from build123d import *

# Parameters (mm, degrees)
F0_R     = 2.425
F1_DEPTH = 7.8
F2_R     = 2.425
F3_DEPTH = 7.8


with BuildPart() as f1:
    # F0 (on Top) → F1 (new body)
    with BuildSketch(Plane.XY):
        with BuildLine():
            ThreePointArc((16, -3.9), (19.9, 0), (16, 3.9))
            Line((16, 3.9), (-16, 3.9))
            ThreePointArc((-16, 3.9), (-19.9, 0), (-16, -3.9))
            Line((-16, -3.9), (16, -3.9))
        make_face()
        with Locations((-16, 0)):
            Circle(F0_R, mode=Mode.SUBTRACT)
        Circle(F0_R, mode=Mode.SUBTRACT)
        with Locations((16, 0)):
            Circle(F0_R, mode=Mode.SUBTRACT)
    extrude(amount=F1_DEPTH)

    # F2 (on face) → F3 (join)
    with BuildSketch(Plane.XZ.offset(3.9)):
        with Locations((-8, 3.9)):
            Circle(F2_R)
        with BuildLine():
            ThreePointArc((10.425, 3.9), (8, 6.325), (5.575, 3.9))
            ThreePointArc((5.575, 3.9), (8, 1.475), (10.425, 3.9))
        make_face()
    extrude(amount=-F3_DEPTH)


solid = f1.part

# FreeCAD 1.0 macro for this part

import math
import FreeCAD as App
import Part
import Sketcher

V = App.Vector

doc = App.newDocument("Part")
body = doc.addObject("PartDesign::Body", "Body")

# Sketch on XY plane
sketch1 = doc.addObject("Sketcher::SketchObject", "Sketch")
body.addObject(sketch1)
sketch1.AttachmentSupport = (doc.XY_Plane, [""])
sketch1.MapMode = "FlatFace"
sketch1.addGeometry(Part.ArcOfCircle(Part.Circle(V(16, 0, 0), V(0, 0, 1), 3.9), math.radians(-90), math.radians(90)), False)
sketch1.addGeometry(Part.LineSegment(V(16, 3.9, 0), V(-16, 3.9, 0)), False)
sketch1.addGeometry(Part.ArcOfCircle(Part.Circle(V(-16, 0, 0), V(0, 0, 1), 3.9), math.radians(90), math.radians(270)), False)
sketch1.addGeometry(Part.LineSegment(V(-16, -3.9, 0), V(16, -3.9, 0)), False)
sketch1.addGeometry(Part.Circle(V(-16, 0, 0), V(0, 0, 1), 2.4), False)
sketch1.addGeometry(Part.Circle(V(0, 0, 0), V(0, 0, 1), 2.4), False)
sketch1.addGeometry(Part.Circle(V(16, 0, 0), V(0, 0, 1), 2.4), False)
sketch1.addConstraint(Sketcher.Constraint("Tangent", 0, 2, 1, 1))
sketch1.addConstraint(Sketcher.Constraint("Tangent", 1, 2, 2, 1))
sketch1.addConstraint(Sketcher.Constraint("Tangent", 2, 2, 3, 1))
sketch1.addConstraint(Sketcher.Constraint("Tangent", 3, 2, 0, 1))
sketch1.addConstraint(Sketcher.Constraint("Horizontal", 1))
sketch1.addConstraint(Sketcher.Constraint("Horizontal", 3))
sketch1.addConstraint(Sketcher.Constraint("Coincident", 5, 3, -1, 1))
sketch1.addConstraint(Sketcher.Constraint("Coincident", 4, 3, 2, 3))
sketch1.addConstraint(Sketcher.Constraint("Coincident", 6, 3, 0, 3))
sketch1.addConstraint(Sketcher.Constraint("Equal", 4, 5))
sketch1.addConstraint(Sketcher.Constraint("Equal", 5, 6))
sketch1.addConstraint(Sketcher.Constraint("Symmetric", 0, 3, 2, 3, -1, 1))
sketch1.addConstraint(Sketcher.Constraint("Radius", 0, 3.9))
sketch1.addConstraint(Sketcher.Constraint("Diameter", 4, 4.85))
sketch1.addConstraint(Sketcher.Constraint("DistanceX", 1, 2, 1, 1, 32.0))
pad1 = doc.addObject("PartDesign::Pad", "Pad")
body.addObject(pad1)
pad1.Profile = sketch1
pad1.Length = 7.8

# Sketch on XZ plane
sketch2 = doc.addObject("Sketcher::SketchObject", "Sketch001")
body.addObject(sketch2)
sketch2.AttachmentSupport = (doc.XZ_Plane, [""])
sketch2.MapMode = "FlatFace"
sketch2.AttachmentOffset = App.Placement(V(0, 0, 3.9), App.Rotation())
sketch2.addGeometry(Part.Circle(V(-8, 3.9, 0), V(0, 0, 1), 2.4), False)
sketch2.addGeometry(Part.Circle(V(8, 3.9, 0), V(0, 0, 1), 2.4), False)
sketch2.addConstraint(Sketcher.Constraint("Equal", 0, 1))
sketch2.addConstraint(Sketcher.Constraint("Symmetric", 0, 3, 1, 3, -2))
sketch2.addConstraint(Sketcher.Constraint("Diameter", 0, 4.85))
sketch2.addConstraint(Sketcher.Constraint("DistanceX", 0, 3, -1, 1, 8.0))
sketch2.addConstraint(Sketcher.Constraint("DistanceY", -1, 1, 0, 3, 3.9))
pad2 = doc.addObject("PartDesign::Pad", "Pad001")
body.addObject(pad2)
pad2.Profile = sketch2
pad2.Length = 7.8
pad2.Reversed = True

doc.recompute()
